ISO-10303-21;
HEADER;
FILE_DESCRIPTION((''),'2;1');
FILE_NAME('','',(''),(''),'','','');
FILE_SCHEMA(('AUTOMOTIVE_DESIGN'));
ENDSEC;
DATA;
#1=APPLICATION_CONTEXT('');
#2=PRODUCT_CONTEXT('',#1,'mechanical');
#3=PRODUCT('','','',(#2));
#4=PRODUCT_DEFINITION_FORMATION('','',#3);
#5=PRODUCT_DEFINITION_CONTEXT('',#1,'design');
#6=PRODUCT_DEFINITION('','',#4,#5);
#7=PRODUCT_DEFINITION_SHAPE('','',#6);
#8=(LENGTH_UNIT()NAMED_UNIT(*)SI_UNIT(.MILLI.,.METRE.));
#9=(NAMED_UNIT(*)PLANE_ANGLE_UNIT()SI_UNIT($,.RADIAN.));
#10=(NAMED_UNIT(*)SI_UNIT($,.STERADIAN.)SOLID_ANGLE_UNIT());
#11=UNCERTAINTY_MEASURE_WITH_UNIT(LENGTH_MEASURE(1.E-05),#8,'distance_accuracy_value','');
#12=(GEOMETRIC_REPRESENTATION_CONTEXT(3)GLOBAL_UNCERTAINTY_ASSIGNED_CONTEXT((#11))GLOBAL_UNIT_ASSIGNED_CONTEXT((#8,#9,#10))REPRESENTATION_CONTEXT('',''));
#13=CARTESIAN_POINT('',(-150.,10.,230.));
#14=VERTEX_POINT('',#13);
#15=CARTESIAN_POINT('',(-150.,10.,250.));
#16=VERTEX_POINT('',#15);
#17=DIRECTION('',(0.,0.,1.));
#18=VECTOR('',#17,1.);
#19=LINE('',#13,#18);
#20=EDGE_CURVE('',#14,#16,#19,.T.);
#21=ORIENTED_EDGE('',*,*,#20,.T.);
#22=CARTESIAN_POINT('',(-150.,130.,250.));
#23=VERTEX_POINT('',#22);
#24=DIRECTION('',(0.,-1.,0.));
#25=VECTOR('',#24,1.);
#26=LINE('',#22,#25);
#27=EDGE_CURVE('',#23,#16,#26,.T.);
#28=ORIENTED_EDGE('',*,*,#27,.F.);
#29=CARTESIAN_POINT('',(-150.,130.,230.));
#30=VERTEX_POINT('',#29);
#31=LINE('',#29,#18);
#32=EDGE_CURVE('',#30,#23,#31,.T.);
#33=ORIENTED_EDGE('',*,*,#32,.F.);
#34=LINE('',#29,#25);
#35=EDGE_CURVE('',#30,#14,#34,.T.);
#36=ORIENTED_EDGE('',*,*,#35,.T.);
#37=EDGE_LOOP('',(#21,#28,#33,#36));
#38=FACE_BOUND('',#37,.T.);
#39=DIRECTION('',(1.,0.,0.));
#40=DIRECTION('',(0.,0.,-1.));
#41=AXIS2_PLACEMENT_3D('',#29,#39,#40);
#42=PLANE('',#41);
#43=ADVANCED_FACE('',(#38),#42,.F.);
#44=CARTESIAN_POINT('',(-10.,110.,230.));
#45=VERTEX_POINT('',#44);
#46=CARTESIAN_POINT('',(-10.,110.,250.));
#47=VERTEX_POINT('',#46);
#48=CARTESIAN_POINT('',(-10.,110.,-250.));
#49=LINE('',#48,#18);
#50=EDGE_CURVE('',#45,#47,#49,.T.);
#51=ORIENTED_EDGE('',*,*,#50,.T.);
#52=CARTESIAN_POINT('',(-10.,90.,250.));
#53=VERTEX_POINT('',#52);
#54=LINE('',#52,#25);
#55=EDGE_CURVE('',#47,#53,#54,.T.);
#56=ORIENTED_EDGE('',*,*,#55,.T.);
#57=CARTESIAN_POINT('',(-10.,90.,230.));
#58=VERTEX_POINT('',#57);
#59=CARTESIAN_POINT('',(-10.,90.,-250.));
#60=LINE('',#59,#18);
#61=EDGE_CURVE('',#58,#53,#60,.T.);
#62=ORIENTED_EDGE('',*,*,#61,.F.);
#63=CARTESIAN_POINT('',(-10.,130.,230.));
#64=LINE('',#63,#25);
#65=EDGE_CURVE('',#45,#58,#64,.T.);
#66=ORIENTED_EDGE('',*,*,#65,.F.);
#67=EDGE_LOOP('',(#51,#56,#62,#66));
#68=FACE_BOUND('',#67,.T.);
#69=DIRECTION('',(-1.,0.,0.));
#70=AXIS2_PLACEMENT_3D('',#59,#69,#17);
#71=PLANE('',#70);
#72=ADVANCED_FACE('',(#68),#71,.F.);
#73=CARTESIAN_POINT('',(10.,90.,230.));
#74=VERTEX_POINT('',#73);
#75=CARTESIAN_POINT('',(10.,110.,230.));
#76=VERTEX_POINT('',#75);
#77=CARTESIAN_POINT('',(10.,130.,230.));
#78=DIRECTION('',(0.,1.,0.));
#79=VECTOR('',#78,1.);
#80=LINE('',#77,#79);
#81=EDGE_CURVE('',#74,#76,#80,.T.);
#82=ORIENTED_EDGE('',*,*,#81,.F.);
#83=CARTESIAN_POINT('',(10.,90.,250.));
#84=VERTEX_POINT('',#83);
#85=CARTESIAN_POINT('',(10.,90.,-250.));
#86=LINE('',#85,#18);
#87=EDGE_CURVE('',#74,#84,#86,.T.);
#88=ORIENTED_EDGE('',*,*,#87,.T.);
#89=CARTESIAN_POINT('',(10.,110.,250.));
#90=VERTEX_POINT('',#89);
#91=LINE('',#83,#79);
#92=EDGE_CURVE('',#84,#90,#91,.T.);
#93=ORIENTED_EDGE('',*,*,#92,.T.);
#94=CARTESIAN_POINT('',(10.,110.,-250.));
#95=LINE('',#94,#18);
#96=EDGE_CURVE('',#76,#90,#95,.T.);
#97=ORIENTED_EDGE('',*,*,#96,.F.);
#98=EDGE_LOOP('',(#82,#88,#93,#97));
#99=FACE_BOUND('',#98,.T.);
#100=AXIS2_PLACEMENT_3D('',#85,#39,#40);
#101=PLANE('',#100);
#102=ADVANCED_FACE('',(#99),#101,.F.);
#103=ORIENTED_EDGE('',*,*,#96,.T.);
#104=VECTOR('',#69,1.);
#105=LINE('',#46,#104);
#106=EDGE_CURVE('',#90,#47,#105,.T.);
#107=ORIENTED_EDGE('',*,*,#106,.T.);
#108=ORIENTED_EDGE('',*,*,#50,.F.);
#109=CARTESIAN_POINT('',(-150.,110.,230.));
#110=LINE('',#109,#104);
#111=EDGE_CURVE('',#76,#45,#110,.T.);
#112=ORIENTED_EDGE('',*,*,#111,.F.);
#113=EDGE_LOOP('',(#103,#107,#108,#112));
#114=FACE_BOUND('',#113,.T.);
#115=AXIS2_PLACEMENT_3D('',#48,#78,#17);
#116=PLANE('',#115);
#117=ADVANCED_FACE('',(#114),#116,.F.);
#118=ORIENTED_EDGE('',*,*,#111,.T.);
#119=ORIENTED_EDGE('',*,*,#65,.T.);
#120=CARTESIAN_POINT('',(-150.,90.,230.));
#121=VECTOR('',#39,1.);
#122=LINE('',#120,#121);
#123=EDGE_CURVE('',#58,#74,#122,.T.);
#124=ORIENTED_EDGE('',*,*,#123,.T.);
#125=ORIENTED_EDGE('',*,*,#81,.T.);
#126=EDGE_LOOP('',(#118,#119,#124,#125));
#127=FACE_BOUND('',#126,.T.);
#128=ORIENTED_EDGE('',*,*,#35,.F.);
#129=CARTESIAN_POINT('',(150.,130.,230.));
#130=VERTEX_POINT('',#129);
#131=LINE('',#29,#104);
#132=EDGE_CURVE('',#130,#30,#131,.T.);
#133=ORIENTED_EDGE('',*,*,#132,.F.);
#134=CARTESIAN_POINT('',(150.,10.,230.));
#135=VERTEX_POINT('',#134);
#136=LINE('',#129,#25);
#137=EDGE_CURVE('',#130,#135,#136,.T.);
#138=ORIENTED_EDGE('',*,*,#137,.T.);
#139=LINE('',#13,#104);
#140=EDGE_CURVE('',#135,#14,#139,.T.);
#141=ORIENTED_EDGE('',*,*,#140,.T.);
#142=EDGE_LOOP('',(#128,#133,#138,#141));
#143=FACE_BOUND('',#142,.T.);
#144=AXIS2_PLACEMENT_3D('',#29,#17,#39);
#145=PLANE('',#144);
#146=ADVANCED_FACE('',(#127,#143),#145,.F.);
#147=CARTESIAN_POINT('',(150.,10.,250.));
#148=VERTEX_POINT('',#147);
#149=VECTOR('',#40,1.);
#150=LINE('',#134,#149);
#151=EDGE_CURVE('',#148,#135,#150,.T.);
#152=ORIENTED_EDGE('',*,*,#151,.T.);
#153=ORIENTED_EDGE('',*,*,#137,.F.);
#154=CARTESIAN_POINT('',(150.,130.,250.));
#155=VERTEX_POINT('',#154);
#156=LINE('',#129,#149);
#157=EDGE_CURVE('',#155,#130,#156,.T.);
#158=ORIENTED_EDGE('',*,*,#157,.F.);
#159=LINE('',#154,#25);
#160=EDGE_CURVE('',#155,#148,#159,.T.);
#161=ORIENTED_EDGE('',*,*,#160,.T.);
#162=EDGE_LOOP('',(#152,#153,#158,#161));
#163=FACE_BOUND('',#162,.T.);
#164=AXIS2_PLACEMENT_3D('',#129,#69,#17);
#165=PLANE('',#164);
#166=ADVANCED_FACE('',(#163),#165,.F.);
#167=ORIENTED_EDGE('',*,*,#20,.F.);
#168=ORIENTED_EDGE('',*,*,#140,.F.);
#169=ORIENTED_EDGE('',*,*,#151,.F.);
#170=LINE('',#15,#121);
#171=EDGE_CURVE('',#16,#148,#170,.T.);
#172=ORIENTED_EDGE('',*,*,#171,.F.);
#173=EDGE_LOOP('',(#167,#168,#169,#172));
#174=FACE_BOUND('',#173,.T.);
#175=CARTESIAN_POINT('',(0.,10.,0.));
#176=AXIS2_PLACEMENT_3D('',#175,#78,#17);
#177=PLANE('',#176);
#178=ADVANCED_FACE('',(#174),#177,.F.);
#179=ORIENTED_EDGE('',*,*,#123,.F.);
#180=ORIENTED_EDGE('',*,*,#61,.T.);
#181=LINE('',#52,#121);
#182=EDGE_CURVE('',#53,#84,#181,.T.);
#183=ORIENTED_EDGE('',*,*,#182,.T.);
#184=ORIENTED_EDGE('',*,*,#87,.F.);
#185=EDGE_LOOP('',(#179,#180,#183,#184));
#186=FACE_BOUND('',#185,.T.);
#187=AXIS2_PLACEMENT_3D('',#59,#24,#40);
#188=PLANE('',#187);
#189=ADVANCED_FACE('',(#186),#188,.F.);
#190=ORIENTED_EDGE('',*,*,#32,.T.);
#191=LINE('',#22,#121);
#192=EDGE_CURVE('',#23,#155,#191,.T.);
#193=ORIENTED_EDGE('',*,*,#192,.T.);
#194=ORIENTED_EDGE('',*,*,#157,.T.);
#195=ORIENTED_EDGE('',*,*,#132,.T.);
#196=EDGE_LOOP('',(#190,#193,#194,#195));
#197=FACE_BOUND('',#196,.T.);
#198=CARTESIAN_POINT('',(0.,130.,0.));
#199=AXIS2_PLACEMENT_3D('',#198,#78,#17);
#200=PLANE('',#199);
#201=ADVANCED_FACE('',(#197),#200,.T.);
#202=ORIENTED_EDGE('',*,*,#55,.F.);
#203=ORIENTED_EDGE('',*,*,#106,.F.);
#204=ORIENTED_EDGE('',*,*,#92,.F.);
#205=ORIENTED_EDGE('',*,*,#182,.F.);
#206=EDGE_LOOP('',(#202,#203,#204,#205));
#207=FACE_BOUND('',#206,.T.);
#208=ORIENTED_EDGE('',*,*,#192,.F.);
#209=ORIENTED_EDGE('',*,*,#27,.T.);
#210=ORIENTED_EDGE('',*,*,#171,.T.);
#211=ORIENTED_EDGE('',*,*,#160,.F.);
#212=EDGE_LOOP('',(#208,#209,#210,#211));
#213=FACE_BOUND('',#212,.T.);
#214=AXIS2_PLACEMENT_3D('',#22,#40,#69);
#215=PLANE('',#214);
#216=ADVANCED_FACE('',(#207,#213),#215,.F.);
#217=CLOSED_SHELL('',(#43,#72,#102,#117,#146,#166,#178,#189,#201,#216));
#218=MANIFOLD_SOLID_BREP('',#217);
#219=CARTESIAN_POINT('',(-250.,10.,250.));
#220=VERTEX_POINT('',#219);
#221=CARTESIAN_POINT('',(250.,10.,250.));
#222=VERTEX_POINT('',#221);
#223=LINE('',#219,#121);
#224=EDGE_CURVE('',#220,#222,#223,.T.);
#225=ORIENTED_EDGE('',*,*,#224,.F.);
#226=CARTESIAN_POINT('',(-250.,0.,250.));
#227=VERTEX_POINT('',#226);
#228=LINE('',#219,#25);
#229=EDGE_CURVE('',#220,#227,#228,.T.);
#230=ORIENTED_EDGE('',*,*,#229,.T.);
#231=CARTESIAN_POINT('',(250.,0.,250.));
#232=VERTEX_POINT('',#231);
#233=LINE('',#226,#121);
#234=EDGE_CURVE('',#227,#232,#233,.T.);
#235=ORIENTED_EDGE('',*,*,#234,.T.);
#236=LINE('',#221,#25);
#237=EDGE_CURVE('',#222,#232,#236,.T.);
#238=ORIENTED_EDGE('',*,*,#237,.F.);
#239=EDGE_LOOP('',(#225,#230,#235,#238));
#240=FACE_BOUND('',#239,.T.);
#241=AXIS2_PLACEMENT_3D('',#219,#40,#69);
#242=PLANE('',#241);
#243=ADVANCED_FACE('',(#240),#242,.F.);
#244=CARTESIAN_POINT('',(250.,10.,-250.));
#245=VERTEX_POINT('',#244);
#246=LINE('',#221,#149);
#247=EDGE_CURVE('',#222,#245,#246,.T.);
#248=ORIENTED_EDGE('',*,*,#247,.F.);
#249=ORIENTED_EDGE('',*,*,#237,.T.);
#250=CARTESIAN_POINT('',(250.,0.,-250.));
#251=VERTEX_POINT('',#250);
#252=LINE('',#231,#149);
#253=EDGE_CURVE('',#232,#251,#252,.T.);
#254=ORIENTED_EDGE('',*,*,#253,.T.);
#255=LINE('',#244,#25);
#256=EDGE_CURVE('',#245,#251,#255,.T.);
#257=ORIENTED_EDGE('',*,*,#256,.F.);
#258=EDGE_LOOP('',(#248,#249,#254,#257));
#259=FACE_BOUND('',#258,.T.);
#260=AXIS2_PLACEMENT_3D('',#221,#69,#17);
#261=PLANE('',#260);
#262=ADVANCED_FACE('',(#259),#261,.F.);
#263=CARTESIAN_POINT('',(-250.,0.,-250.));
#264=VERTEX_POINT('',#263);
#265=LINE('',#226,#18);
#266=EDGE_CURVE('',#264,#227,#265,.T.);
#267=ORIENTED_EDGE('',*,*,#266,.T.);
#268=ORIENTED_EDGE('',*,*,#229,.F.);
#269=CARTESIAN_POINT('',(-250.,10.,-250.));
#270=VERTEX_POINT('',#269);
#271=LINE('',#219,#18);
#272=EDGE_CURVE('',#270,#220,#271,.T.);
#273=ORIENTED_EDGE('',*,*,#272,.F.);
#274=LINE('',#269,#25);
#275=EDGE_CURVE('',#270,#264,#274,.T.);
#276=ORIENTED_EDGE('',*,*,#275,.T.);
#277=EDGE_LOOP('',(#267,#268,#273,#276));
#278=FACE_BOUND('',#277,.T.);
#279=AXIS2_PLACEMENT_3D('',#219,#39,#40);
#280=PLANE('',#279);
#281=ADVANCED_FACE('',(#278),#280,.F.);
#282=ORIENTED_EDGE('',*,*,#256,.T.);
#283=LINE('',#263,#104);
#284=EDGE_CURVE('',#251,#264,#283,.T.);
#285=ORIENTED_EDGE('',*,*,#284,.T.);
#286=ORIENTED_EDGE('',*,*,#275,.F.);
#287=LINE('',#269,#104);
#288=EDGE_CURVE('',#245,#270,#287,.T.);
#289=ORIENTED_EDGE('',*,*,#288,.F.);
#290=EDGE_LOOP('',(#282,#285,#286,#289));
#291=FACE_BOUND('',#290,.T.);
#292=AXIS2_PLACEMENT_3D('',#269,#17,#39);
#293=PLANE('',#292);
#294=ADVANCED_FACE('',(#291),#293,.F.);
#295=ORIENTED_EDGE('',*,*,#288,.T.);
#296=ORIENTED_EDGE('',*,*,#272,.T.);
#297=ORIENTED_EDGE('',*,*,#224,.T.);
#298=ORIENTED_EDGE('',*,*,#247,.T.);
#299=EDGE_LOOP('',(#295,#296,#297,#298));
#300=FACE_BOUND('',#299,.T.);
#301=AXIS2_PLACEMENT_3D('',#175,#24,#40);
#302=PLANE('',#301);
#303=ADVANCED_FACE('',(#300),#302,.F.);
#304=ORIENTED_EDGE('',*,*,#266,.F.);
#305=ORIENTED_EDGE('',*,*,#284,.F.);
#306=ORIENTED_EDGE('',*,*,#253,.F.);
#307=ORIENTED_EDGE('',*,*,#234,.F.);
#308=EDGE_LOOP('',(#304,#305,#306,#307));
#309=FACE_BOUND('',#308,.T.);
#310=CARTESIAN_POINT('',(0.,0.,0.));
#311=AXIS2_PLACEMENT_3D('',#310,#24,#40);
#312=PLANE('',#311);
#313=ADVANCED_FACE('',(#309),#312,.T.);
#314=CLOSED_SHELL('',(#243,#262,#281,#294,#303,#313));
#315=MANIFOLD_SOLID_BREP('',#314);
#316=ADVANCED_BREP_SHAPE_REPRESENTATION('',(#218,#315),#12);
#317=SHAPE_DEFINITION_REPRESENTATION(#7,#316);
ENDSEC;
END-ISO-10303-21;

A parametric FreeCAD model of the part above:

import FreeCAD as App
import Part
import Sketcher
from FreeCAD import Vector

doc = App.newDocument("Part")
body = doc.addObject("PartDesign::Body", "Body")

sketch1 = doc.addObject("Sketcher::SketchObject", "Sketch")
body.addObject(sketch1)
sketch1.AttachmentSupport = (doc.XZ_Plane, [""])
sketch1.MapMode = "FlatFace"
sketch1.addGeometry(Part.LineSegment(Vector(-250, -250, 0), Vector(-250, 250, 0)), False)
sketch1.addGeometry(Part.LineSegment(Vector(-250, 250, 0), Vector(250, 250, 0)), False)
sketch1.addGeometry(Part.LineSegment(Vector(250, 250, 0), Vector(250, -250, 0)), False)
sketch1.addGeometry(Part.LineSegment(Vector(250, -250, 0), Vector(-250, -250, 0)), False)
sketch1.addConstraint(Sketcher.Constraint("Coincident", 0, 2, 1, 1))
sketch1.addConstraint(Sketcher.Constraint("Coincident", 1, 2, 2, 1))
sketch1.addConstraint(Sketcher.Constraint("Coincident", 2, 2, 3, 1))
sketch1.addConstraint(Sketcher.Constraint("Coincident", 3, 2, 0, 1))
sketch1.addConstraint(Sketcher.Constraint("Vertical", 0))
sketch1.addConstraint(Sketcher.Constraint("Horizontal", 1))
sketch1.addConstraint(Sketcher.Constraint("Vertical", 2))
sketch1.addConstraint(Sketcher.Constraint("Horizontal", 3))
sketch1.addConstraint(Sketcher.Constraint("Symmetric", 0, 2, 2, 2, -1, 1))
sketch1.addConstraint(Sketcher.Constraint("Equal", 3, 0))
sketch1.addConstraint(Sketcher.Constraint("DistanceX", 1, 1, 1, 2, 500.0))
pad1 = doc.addObject("PartDesign::Pad", "Pad")
body.addObject(pad1)
pad1.Profile = sketch1
pad1.Length = 10
pad1.Reversed = True
body2 = doc.addObject("PartDesign::Body", "Body001")

sketch2 = doc.addObject("Sketcher::SketchObject", "Sketch001")
body2.addObject(sketch2)
sketch2.AttachmentSupport = (doc.getObject("XZ_Plane001"), [""])
sketch2.MapMode = "FlatFace"
sketch2.AttachmentOffset = App.Placement(Vector(0, 0, -10), App.Rotation())
sketch2.addGeometry(Part.LineSegment(Vector(-150, 230, 0), Vector(-150, 250, 0)), False)
sketch2.addGeometry(Part.LineSegment(Vector(-150, 250, 0), Vector(150, 250, 0)), False)
sketch2.addGeometry(Part.LineSegment(Vector(150, 250, 0), Vector(150, 230, 0)), False)
sketch2.addGeometry(Part.LineSegment(Vector(150, 230, 0), Vector(-150, 230, 0)), False)
sketch2.addConstraint(Sketcher.Constraint("Coincident", 0, 2, 1, 1))
sketch2.addConstraint(Sketcher.Constraint("Coincident", 1, 2, 2, 1))
sketch2.addConstraint(Sketcher.Constraint("Coincident", 2, 2, 3, 1))
sketch2.addConstraint(Sketcher.Constraint("Coincident", 3, 2, 0, 1))
sketch2.addConstraint(Sketcher.Constraint("Vertical", 0))
sketch2.addConstraint(Sketcher.Constraint("Horizontal", 1))
sketch2.addConstraint(Sketcher.Constraint("Vertical", 2))
sketch2.addConstraint(Sketcher.Constraint("Horizontal", 3))
sketch2.addConstraint(Sketcher.Constraint("DistanceX", 1, 1, 1, 2, 300.0))
sketch2.addConstraint(Sketcher.Constraint("DistanceY", 0, 1, 0, 2, 20.0))
sketch2.addConstraint(Sketcher.Constraint("DistanceX", 0, 2, -1, 1, 150.0))
sketch2.addConstraint(Sketcher.Constraint("DistanceY", -1, 1, 0, 2, 250.0))
pad2 = doc.addObject("PartDesign::Pad", "Pad001")
body2.addObject(pad2)
pad2.Profile = sketch2
pad2.Length = 120
pad2.Reversed = True

sketch3 = doc.addObject("Sketcher::SketchObject", "Sketch002")
body2.addObject(sketch3)
sketch3.AttachmentSupport = (doc.getObject("XY_Plane001"), [""])
sketch3.MapMode = "FlatFace"
sketch3.AttachmentOffset = App.Placement(Vector(0, 0, 250), App.Rotation())
sketch3.addGeometry(Part.LineSegment(Vector(-10, 110, 0), Vector(-10, 90, 0)), False)
sketch3.addGeometry(Part.LineSegment(Vector(-10, 90, 0), Vector(10, 90, 0)), False)
sketch3.addGeometry(Part.LineSegment(Vector(10, 90, 0), Vector(10, 110, 0)), False)
sketch3.addGeometry(Part.LineSegment(Vector(10, 110, 0), Vector(-10, 110, 0)), False)
sketch3.addConstraint(Sketcher.Constraint("Coincident", 0, 2, 1, 1))
sketch3.addConstraint(Sketcher.Constraint("Coincident", 1, 2, 2, 1))
sketch3.addConstraint(Sketcher.Constraint("Coincident", 2, 2, 3, 1))
sketch3.addConstraint(Sketcher.Constraint("Coincident", 3, 2, 0, 1))
sketch3.addConstraint(Sketcher.Constraint("Vertical", 0))
sketch3.addConstraint(Sketcher.Constraint("Horizontal", 1))
sketch3.addConstraint(Sketcher.Constraint("Vertical", 2))
sketch3.addConstraint(Sketcher.Constraint("Horizontal", 3))
sketch3.addConstraint(Sketcher.Constraint("Equal", 3, 0))
sketch3.addConstraint(Sketcher.Constraint("DistanceX", 1, 1, 1, 2, 20.0))
sketch3.addConstraint(Sketcher.Constraint("DistanceX", 0, 2, -1, 1, 10.0))
sketch3.addConstraint(Sketcher.Constraint("DistanceY", -1, 1, 0, 2, 90.0))
pocket1 = doc.addObject("PartDesign::Pocket", "Pocket")
body2.addObject(pocket1)
pocket1.Profile = sketch3
pocket1.Type = "ThroughAll"

doc.recompute()
